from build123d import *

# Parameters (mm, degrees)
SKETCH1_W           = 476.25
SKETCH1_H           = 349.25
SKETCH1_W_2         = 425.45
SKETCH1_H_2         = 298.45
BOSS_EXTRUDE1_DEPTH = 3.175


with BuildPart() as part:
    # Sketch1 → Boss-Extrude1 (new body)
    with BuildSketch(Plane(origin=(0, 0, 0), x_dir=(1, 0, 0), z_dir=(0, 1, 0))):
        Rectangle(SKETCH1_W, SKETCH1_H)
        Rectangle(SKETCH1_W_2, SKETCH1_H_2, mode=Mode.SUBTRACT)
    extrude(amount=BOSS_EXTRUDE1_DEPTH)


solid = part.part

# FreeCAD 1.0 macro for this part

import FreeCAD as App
import Part
import Sketcher
Q = App.Units.Quantity

doc = App.newDocument("Part")
body = doc.addObject("PartDesign::Body", "Body")

# Sketch on XZ plane
sketch1 = doc.addObject("Sketcher::SketchObject", "Sketch")
body.addObject(sketch1)
sketch1.AttachmentSupport = (doc.XZ_Plane, [""])
sketch1.MapMode = "FlatFace"
sketch1.addGeometry([
    Part.LineSegment(App.Vector(-238.125, -174.625, 0), App.Vector(-238.125, 174.625, 0)),  # 0
    Part.LineSegment(App.Vector(-238.125, 174.625, 0), App.Vector(238.125, 174.625, 0)),  # 1
    Part.LineSegment(App.Vector(238.125, 174.625, 0), App.Vector(238.125, -174.625, 0)),  # 2
    Part.LineSegment(App.Vector(238.125, -174.625, 0), App.Vector(-238.125, -174.625, 0)),  # 3
    Part.LineSegment(App.Vector(212.725, 149.225, 0), App.Vector(-212.725, 149.225, 0)),  # 4
    Part.LineSegment(App.Vector(-212.725, 149.225, 0), App.Vector(-212.725, -149.225, 0)),  # 5
    Part.LineSegment(App.Vector(-212.725, -149.225, 0), App.Vector(212.725, -149.225, 0)),  # 6
    Part.LineSegment(App.Vector(212.725, -149.225, 0), App.Vector(212.725, 149.225, 0)),  # 7
], False)
sketch1.addConstraint([
    Sketcher.Constraint("Coincident", 0, 2, 1, 1),
    Sketcher.Constraint("Coincident", 1, 2, 2, 1),
    Sketcher.Constraint("Coincident", 2, 2, 3, 1),
    Sketcher.Constraint("Coincident", 3, 2, 0, 1),
    Sketcher.Constraint("Coincident", 4, 2, 5, 1),
    Sketcher.Constraint("Coincident", 5, 2, 6, 1),
    Sketcher.Constraint("Coincident", 6, 2, 7, 1),
    Sketcher.Constraint("Coincident", 7, 2, 4, 1),
    Sketcher.Constraint("Vertical", 0),
    Sketcher.Constraint("Horizontal", 1),
    Sketcher.Constraint("Vertical", 2),
    Sketcher.Constraint("Horizontal", 3),
    Sketcher.Constraint("Horizontal", 4),
    Sketcher.Constraint("Vertical", 5),
    Sketcher.Constraint("Horizontal", 6),
    Sketcher.Constraint("Vertical", 7),
    Sketcher.Constraint("Symmetric", 0, 2, 2, 2, -1, 1),
    Sketcher.Constraint("Symmetric", 4, 2, 6, 2, -1, 1),
    Sketcher.Constraint("DistanceX", 0, 2, 4, 2, Q("1 in")),
    Sketcher.Constraint("DistanceY", 4, 2, 0, 2, Q("1 in")),
    Sketcher.Constraint("DistanceX", 1, 1, 1, 2, Q("18.75 in")),
    Sketcher.Constraint("DistanceY", 0, 1, 0, 2, Q("13.75 in")),
])
pad1 = doc.addObject("PartDesign::Pad", "Pad")
body.addObject(pad1)
pad1.Profile = sketch1
pad1.Length = Q("0.125 in")
pad1.Reversed = True

doc.recompute()
